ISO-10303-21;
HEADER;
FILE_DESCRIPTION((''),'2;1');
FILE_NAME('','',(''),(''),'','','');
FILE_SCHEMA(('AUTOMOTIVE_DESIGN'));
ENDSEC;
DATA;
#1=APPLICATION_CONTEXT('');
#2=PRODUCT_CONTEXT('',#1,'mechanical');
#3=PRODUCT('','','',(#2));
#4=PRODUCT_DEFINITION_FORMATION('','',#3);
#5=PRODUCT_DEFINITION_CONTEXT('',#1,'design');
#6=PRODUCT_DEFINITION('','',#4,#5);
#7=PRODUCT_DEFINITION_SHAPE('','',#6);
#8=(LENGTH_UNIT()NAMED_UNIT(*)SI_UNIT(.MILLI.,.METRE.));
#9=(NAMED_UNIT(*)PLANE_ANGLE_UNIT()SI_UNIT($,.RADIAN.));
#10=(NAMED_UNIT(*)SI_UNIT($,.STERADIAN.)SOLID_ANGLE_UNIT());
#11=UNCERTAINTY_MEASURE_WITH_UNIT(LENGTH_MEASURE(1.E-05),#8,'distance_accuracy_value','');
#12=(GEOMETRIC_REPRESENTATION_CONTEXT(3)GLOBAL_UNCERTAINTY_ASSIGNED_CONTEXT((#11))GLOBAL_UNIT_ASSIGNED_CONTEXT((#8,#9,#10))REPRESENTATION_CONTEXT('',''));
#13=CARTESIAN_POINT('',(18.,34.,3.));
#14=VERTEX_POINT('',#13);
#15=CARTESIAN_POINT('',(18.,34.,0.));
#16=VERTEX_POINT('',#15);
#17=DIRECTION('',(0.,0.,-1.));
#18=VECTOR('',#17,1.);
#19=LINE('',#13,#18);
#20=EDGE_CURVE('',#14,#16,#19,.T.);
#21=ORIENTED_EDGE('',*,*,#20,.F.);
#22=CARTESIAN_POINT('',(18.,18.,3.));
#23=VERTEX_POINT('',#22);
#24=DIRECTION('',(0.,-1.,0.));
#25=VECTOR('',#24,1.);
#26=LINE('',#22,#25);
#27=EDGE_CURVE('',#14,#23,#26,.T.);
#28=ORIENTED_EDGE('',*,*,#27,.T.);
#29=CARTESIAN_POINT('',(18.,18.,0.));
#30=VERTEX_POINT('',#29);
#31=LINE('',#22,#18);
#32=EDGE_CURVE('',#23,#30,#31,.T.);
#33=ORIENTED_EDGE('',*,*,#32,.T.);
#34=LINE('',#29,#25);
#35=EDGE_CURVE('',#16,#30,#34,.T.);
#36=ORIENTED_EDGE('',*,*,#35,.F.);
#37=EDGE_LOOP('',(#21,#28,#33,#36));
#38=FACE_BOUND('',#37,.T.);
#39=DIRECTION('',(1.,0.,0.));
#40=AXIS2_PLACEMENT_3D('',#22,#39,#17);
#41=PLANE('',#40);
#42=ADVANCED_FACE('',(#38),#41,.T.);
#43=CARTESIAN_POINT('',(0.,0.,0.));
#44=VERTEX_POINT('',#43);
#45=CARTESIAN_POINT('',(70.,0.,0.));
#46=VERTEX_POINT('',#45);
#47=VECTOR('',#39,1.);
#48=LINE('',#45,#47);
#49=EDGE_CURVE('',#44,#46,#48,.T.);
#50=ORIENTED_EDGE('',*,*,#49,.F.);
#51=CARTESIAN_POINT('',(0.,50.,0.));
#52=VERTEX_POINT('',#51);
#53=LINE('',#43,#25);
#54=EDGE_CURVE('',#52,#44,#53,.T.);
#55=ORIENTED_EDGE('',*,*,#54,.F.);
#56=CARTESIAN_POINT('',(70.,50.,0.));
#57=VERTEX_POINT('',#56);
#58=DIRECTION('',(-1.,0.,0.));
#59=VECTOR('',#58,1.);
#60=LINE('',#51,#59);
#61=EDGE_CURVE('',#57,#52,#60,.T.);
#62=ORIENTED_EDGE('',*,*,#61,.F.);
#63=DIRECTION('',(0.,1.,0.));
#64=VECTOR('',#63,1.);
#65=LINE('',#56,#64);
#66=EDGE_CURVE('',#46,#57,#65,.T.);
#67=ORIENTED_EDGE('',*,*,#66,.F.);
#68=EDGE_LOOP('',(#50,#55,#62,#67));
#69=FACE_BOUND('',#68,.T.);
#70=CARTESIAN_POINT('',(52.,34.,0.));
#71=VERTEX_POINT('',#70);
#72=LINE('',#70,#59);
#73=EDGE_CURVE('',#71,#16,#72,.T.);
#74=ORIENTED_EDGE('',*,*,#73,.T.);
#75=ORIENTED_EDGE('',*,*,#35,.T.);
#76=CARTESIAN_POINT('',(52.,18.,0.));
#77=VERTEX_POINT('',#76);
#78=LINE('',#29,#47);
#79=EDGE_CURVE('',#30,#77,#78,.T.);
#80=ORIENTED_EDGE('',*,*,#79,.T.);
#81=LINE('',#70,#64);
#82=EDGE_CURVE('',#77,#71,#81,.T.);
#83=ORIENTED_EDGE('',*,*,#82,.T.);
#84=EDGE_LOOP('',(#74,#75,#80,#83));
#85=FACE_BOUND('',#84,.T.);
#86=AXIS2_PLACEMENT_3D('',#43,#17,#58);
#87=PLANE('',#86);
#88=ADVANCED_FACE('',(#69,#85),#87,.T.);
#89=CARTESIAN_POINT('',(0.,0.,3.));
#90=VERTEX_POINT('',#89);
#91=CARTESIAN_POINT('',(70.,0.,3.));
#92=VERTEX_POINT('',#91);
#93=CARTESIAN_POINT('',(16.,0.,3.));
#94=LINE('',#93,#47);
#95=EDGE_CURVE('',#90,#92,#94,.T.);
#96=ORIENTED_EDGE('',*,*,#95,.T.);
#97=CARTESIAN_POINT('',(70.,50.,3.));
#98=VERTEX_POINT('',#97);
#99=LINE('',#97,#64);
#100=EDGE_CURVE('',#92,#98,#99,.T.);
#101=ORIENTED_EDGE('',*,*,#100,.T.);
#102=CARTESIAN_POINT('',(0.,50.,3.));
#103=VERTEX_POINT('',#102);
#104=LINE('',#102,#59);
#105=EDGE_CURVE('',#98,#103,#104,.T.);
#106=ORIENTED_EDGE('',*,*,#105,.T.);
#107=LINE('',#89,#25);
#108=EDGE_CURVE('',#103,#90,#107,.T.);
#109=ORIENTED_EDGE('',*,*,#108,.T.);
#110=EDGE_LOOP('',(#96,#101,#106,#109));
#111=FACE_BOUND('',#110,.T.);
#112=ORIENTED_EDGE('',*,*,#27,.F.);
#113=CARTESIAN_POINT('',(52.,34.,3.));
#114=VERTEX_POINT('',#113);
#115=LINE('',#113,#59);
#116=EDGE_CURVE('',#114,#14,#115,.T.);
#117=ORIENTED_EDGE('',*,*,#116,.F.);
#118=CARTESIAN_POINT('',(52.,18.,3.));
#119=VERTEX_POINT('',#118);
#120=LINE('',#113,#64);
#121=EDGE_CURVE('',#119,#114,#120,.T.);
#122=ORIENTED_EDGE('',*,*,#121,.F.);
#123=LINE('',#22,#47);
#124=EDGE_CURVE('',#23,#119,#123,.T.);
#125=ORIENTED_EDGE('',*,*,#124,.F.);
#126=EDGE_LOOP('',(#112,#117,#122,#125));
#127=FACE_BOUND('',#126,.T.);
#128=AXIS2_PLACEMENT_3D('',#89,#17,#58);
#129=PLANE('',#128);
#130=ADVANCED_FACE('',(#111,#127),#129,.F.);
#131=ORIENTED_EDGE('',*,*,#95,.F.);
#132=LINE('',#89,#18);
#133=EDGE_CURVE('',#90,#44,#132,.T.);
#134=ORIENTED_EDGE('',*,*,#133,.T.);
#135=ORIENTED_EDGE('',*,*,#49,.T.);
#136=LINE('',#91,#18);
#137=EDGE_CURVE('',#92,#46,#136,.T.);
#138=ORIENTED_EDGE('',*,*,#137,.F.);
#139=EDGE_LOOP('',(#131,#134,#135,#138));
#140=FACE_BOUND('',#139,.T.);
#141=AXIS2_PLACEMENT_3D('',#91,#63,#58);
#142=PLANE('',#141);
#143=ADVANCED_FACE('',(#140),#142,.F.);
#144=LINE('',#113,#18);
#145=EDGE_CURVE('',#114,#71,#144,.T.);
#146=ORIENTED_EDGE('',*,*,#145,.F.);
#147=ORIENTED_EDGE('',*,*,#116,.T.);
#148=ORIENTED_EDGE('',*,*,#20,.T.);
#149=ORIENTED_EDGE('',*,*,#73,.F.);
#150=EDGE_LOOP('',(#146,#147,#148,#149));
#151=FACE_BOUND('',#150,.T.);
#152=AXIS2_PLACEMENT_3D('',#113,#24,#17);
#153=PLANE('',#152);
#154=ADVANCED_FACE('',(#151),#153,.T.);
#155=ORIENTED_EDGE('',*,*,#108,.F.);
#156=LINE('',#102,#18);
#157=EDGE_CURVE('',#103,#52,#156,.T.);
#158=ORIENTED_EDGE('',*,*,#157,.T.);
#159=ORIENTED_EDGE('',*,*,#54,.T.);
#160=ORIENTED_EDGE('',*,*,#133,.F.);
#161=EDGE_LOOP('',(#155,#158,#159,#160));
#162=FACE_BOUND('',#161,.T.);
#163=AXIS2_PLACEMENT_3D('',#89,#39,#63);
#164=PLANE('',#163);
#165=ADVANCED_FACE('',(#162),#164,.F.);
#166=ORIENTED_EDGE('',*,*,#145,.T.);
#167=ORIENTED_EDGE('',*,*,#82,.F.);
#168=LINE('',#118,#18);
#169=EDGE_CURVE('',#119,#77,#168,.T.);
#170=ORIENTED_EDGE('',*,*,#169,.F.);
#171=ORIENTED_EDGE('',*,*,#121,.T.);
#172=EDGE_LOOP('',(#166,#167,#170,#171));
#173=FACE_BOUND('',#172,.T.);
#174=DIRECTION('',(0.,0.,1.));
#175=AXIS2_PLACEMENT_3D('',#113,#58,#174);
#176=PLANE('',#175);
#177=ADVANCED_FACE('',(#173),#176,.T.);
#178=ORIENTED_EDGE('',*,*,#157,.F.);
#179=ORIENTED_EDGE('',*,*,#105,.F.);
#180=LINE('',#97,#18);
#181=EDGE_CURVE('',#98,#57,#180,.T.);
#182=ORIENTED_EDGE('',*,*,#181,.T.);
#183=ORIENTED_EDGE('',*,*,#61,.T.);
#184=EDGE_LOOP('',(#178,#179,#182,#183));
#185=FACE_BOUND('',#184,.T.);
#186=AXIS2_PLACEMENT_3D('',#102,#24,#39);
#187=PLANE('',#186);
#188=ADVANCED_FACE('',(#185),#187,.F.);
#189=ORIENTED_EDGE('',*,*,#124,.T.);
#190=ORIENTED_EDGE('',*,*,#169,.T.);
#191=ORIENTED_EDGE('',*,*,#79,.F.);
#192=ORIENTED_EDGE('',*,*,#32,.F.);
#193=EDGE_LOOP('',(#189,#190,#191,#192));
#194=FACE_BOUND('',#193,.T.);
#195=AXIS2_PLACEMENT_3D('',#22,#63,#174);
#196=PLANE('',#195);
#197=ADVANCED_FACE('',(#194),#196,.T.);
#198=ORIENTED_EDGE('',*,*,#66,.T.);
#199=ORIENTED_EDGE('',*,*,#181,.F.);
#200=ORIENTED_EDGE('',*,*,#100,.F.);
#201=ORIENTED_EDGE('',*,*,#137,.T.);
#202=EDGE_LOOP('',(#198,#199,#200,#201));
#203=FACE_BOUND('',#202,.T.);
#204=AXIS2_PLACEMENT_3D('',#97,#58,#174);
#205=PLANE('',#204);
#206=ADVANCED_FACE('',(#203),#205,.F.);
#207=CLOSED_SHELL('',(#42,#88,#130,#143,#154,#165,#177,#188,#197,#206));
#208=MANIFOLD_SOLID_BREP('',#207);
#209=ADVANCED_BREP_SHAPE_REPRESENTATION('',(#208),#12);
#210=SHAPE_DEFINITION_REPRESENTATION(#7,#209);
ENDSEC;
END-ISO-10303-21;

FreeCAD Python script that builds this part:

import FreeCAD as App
import Part
import Sketcher
Q = App.Units.Quantity


def add_polygon(sketch, points):
    """Adds a closed chain of lines whose ends are joined by coincident constraints."""
    first, n = sketch.GeometryCount, len(points)
    for a, b in zip(points, points[1:] + points[:1]):
        sketch.addGeometry(Part.LineSegment(App.Vector(*a, 0), App.Vector(*b, 0)), False)
    for i in range(n):
        sketch.addConstraint(Sketcher.Constraint("Coincident", first + i, 2, first + (i + 1) % n, 1))

doc = App.newDocument("Part")
body = doc.addObject("PartDesign::Body", "Body")

# Sketch on XY plane
sketch1 = body.newObject("Sketcher::SketchObject", "Sketch")
sketch1.AttachmentSupport = (doc.getObject("XY_Plane"), [""])
sketch1.MapMode = "FlatFace"
add_polygon(sketch1, [(0, 50), (0, 0), (70, 0), (70, 50)])  # lines 0-3
add_polygon(sketch1, [(18, 18), (18, 34), (52, 34), (52, 18)])  # lines 4-7
sketch1.addConstraint(Sketcher.Constraint("Vertical", 0))
sketch1.addConstraint(Sketcher.Constraint("Horizontal", 1))
sketch1.addConstraint(Sketcher.Constraint("Vertical", 2))
sketch1.addConstraint(Sketcher.Constraint("Horizontal", 3))
sketch1.addConstraint(Sketcher.Constraint("Vertical", 4))
sketch1.addConstraint(Sketcher.Constraint("Horizontal", 5))
sketch1.addConstraint(Sketcher.Constraint("Vertical", 6))
sketch1.addConstraint(Sketcher.Constraint("Horizontal", 7))
sketch1.addConstraint(Sketcher.Constraint("Coincident", 0, 2, -1, 1))
sketch1.addConstraint(Sketcher.Constraint("DistanceX", 1, 1, 1, 2, Q("70 mm")))
sketch1.addConstraint(Sketcher.Constraint("DistanceX", 5, 1, 5, 2, Q("34 mm")))
sketch1.addConstraint(Sketcher.Constraint("DistanceY", 0, 2, 0, 1, Q("50 mm")))
sketch1.addConstraint(Sketcher.Constraint("DistanceY", 4, 1, 4, 2, Q("16 mm")))
sketch1.addConstraint(Sketcher.Constraint("DistanceX", -1, 1, 4, 2, Q("18 mm")))
sketch1.addConstraint(Sketcher.Constraint("DistanceY", -1, 1, 4, 2, Q("34 mm")))
pad1 = body.newObject("PartDesign::Pad", "Pad")
pad1.Profile = sketch1
pad1.Length = 3

doc.recompute()
